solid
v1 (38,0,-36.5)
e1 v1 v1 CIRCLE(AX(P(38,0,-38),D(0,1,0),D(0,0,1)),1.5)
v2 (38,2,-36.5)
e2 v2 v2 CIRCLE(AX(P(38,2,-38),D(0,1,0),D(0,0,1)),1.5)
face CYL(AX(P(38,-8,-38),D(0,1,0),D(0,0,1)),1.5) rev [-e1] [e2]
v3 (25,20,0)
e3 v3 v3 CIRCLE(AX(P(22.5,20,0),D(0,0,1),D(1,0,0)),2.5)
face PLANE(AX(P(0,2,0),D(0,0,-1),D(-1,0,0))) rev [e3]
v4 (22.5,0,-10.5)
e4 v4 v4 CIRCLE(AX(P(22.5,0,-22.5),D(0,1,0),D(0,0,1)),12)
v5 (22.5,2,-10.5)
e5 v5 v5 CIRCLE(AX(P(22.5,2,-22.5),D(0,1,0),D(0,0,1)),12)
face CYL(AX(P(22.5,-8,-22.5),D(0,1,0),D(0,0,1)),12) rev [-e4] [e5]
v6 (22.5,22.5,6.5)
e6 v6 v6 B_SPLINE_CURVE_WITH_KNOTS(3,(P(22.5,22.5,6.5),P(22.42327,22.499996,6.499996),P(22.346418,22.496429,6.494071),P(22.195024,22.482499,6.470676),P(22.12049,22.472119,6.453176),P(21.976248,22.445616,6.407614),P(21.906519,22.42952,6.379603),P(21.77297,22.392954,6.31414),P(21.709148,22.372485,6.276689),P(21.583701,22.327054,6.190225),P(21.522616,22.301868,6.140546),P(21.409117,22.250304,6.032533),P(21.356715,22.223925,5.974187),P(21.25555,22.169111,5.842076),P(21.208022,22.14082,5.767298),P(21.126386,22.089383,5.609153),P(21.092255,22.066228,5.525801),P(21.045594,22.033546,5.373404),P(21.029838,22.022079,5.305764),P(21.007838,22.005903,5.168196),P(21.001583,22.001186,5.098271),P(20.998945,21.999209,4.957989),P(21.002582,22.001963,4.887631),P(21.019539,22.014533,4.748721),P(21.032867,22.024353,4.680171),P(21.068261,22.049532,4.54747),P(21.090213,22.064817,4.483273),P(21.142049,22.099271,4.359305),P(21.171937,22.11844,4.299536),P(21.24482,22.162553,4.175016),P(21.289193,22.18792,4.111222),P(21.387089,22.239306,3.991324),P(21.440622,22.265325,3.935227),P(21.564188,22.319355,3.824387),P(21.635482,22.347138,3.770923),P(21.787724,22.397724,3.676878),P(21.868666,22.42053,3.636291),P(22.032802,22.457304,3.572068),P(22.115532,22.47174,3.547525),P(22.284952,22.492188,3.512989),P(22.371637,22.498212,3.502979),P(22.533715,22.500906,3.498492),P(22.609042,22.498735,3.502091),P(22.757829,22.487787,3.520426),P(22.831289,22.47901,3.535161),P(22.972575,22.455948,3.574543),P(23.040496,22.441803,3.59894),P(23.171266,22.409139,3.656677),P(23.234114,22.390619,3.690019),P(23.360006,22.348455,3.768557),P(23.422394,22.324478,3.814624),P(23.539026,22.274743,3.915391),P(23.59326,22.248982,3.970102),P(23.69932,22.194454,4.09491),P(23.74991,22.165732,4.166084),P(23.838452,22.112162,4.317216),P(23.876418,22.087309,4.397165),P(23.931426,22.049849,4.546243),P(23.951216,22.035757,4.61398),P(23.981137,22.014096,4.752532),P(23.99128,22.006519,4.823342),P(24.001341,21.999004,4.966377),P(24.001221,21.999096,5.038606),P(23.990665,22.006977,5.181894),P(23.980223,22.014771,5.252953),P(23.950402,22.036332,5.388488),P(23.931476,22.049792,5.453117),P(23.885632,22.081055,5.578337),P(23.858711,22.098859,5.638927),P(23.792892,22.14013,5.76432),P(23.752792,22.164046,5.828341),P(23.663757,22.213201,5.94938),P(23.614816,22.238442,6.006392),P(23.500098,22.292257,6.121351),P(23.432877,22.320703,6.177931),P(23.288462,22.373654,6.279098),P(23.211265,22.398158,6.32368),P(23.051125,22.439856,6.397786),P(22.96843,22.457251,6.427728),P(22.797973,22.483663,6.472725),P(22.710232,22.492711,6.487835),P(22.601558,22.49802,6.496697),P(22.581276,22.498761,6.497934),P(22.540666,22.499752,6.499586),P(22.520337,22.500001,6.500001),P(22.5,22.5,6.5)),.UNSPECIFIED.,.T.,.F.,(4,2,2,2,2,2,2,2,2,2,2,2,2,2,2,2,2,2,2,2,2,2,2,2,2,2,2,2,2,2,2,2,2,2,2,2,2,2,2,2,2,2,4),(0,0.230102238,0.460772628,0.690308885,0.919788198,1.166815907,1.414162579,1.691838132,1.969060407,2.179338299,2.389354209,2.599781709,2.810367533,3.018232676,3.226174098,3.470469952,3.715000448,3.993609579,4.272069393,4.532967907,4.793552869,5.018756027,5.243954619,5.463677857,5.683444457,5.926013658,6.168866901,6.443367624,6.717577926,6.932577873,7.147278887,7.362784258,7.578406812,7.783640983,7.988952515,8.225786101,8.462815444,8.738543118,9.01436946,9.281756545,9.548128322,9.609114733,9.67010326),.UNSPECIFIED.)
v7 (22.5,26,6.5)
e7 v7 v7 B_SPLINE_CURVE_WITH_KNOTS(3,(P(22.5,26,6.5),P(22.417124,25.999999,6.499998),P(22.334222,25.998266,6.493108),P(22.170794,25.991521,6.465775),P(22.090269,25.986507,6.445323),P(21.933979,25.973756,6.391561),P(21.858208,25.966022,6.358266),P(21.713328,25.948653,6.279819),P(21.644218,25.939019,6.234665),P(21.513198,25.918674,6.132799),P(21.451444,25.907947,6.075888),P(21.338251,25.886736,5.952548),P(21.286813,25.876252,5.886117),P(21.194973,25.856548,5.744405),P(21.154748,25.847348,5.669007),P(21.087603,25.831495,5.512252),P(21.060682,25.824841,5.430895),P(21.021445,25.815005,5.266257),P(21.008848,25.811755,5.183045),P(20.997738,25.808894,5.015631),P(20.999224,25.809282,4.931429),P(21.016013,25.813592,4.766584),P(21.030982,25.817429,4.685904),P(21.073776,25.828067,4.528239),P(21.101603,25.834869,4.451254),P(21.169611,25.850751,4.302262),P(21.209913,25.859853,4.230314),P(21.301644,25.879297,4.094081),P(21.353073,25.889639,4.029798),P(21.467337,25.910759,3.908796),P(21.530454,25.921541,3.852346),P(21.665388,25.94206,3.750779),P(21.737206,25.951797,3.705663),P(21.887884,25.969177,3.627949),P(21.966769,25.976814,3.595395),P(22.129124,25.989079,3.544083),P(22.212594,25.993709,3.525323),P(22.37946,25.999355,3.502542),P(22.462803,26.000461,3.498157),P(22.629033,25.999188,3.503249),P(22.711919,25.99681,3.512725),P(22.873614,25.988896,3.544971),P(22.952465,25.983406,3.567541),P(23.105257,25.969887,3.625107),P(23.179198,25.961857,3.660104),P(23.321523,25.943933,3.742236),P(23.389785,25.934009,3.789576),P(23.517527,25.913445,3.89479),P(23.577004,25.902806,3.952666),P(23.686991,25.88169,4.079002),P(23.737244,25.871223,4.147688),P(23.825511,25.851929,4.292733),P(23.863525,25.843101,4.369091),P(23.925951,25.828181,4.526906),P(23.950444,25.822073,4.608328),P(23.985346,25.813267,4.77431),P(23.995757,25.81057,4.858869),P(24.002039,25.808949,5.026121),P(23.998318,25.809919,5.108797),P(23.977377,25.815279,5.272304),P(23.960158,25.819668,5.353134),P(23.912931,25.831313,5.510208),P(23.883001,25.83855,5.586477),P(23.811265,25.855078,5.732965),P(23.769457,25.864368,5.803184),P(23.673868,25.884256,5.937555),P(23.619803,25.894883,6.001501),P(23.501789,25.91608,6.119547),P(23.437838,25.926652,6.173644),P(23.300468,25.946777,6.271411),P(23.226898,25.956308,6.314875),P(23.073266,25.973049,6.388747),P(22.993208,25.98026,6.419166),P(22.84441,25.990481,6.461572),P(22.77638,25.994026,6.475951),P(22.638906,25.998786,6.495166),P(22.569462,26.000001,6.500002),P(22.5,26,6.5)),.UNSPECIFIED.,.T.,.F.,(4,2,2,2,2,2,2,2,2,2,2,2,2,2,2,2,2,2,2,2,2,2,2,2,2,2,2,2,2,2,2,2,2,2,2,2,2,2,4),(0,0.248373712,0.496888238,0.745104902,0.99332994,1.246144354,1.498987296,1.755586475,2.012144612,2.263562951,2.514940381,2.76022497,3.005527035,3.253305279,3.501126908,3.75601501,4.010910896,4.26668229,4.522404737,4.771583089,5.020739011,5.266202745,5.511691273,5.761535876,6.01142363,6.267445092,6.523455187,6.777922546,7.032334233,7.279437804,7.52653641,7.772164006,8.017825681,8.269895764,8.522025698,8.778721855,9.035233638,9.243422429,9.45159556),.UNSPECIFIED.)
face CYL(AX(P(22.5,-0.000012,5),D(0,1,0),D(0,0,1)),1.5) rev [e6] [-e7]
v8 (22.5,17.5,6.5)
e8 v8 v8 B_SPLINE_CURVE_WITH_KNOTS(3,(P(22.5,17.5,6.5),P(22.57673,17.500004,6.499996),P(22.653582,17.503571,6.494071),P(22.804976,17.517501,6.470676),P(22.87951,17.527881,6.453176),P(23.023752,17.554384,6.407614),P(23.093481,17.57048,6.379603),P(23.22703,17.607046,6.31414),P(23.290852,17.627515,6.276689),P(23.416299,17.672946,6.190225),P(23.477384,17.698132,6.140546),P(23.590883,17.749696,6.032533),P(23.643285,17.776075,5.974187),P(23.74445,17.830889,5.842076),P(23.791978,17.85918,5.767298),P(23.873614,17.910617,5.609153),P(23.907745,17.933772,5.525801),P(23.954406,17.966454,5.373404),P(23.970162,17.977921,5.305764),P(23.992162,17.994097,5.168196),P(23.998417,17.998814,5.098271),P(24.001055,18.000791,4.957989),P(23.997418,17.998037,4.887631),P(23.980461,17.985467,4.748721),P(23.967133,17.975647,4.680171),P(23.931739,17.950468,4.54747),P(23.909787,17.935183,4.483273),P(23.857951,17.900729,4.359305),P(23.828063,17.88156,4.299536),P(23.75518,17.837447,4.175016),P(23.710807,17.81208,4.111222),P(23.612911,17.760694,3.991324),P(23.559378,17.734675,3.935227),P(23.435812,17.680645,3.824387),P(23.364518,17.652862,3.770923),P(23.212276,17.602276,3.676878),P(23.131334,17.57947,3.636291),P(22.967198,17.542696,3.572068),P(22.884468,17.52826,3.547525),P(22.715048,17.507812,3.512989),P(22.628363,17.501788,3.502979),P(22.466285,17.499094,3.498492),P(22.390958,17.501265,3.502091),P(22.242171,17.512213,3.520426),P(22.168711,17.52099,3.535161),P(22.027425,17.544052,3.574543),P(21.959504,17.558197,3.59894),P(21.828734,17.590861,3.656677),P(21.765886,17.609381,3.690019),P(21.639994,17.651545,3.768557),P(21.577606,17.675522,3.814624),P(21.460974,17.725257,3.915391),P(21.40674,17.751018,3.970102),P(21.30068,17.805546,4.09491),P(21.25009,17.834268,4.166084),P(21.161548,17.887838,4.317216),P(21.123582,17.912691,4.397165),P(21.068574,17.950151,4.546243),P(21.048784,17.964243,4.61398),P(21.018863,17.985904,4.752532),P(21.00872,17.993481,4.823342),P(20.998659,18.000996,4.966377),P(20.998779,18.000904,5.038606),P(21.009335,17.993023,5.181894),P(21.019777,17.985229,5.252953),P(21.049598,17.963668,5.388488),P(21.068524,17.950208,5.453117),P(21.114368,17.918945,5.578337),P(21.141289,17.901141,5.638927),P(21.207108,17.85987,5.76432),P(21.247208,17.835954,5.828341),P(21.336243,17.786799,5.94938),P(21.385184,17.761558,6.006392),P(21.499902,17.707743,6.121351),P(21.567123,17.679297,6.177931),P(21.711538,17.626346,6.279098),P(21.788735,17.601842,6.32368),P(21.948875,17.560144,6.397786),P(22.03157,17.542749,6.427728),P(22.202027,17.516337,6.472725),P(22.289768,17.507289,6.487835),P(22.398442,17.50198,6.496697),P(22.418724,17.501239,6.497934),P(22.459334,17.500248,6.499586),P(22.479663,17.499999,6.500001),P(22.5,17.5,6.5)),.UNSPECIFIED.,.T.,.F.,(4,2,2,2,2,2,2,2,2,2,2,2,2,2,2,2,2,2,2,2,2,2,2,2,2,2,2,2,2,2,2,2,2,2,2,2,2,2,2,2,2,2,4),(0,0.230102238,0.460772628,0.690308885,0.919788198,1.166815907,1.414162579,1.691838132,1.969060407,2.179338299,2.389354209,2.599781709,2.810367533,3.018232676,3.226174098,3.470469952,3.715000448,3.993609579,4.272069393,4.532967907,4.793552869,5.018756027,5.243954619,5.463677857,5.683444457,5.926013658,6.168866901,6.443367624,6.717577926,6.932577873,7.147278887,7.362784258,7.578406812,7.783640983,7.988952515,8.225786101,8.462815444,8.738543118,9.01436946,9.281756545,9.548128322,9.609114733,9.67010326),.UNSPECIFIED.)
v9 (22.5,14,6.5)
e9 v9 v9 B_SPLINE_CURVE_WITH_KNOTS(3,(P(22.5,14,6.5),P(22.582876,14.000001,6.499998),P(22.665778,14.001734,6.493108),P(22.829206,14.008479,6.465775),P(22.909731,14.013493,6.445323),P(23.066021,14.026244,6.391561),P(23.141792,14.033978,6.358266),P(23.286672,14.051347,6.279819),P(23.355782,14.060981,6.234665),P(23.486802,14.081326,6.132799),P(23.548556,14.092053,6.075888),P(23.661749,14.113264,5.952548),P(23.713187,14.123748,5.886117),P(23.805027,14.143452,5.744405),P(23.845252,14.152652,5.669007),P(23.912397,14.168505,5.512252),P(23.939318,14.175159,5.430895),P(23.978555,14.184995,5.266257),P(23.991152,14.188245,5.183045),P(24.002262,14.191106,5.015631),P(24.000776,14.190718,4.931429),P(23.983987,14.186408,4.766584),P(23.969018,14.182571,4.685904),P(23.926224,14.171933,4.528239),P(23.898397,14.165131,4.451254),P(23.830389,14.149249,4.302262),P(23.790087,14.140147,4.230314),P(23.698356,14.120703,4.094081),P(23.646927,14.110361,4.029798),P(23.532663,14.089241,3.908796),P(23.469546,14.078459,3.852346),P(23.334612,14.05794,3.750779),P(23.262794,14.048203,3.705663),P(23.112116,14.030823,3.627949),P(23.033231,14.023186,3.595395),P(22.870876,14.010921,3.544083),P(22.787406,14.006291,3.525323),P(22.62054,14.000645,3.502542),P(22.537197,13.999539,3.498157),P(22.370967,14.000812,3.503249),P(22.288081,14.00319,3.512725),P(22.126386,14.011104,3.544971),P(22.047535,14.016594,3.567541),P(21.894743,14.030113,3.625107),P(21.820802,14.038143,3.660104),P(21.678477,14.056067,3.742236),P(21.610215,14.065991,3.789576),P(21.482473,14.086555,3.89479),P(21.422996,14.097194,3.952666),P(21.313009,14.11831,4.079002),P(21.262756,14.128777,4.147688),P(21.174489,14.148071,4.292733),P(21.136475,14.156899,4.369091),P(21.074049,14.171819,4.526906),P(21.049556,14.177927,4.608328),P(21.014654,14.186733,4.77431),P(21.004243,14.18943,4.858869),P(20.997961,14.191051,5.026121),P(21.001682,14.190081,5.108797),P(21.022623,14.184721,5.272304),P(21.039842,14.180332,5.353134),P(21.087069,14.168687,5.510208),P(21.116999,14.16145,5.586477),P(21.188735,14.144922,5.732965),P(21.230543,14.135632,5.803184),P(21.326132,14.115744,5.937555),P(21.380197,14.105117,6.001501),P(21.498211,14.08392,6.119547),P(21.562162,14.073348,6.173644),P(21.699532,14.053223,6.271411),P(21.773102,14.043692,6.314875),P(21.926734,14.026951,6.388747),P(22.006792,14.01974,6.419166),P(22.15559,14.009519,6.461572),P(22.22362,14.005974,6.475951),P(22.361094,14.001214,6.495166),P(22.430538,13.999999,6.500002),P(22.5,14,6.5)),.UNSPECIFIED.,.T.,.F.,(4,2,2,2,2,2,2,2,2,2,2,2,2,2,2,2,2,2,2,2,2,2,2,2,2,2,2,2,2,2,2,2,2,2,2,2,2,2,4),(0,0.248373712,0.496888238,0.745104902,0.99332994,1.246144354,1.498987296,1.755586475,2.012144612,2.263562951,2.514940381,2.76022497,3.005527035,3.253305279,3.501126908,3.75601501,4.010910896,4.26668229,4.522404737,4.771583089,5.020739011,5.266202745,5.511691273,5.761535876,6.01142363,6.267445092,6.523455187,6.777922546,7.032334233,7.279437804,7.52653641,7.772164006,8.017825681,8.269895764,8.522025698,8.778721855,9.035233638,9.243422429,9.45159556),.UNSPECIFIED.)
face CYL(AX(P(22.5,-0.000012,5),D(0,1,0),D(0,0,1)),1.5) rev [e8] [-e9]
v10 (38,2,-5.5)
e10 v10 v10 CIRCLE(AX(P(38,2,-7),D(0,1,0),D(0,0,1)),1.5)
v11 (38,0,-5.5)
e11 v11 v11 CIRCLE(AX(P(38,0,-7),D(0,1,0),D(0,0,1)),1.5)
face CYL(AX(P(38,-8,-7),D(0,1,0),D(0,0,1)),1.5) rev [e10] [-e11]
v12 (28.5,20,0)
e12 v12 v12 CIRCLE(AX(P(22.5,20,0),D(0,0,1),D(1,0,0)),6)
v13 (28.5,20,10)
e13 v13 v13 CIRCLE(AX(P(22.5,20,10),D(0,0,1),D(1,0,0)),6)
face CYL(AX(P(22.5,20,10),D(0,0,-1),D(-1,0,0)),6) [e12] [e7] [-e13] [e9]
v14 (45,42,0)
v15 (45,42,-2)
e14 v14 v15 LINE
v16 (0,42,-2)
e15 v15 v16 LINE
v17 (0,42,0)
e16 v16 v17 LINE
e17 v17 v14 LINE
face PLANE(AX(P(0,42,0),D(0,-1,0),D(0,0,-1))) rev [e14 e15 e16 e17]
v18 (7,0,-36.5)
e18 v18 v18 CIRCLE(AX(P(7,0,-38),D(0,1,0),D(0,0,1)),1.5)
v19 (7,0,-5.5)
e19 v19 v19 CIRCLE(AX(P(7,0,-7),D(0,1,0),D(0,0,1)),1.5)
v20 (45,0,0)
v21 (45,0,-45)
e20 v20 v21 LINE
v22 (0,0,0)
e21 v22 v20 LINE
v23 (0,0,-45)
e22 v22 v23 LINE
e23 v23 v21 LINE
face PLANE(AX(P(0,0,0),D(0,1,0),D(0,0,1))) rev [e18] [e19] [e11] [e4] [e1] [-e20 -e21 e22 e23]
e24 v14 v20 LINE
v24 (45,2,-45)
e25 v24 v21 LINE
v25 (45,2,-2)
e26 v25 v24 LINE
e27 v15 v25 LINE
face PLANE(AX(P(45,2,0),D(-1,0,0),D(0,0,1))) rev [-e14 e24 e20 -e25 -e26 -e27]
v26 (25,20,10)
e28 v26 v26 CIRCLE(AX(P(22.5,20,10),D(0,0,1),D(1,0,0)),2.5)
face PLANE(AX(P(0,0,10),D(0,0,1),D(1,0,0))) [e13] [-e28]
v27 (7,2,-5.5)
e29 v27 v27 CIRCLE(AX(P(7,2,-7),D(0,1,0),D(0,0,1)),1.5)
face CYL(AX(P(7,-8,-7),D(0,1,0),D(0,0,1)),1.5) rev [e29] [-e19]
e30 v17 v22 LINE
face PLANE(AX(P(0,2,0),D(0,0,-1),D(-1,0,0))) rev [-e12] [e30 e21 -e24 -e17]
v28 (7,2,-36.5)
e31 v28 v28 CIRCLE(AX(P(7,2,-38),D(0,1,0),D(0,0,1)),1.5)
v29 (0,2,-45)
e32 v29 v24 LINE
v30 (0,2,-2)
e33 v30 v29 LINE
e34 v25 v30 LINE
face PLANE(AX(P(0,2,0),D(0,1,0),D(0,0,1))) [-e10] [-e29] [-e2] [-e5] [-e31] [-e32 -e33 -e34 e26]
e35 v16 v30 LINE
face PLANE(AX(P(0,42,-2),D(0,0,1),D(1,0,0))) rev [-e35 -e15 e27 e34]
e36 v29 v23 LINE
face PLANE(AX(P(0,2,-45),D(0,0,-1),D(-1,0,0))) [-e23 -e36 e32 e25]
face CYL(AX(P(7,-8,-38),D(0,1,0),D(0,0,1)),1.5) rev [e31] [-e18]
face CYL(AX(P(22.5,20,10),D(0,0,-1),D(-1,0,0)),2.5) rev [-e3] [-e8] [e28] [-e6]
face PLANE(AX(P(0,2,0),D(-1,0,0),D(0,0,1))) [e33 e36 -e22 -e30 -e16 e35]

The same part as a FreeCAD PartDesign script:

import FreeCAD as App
import Part
import Sketcher
from FreeCAD import Vector


def add_polygon(sketch, points):
    """Adds a closed chain of lines whose ends are joined by coincident constraints."""
    first, n = sketch.GeometryCount, len(points)
    for a, b in zip(points, points[1:] + points[:1]):
        sketch.addGeometry(Part.LineSegment(App.Vector(*a, 0), App.Vector(*b, 0)), False)
    for i in range(n):
        sketch.addConstraint(Sketcher.Constraint("Coincident", first + i, 2, first + (i + 1) % n, 1))

doc = App.newDocument("Part")
params = doc.addObject("Spreadsheet::Sheet", "Params")
for row, (alias, value) in enumerate([
    ("sketch1_width", "45 mm"),
    ("pad1_length", "2 mm"),
    ("sketch2_diameter", "24 mm"),
    ("sketch2_diameter2", "3 mm"),
    ("pocket1_length", "10 mm"),
    ("sketch3_width", "45 mm"),
    ("sketch3_height", "2 mm"),
    ("pad2_length", "40 mm"),
    ("sketch4_diameter", "12 mm"),
    ("sketch4_diameter2", "5 mm"),
    ("pad3_length", "10 mm"),
    ("sketch5_diameter", "3 mm"),
], start=1):
    params.set(f"A{row}", alias)
    params.set(f"B{row}", "=" + value)
    params.setAlias(f"B{row}", alias)

body = doc.addObject("PartDesign::Body", "Body")

sketch1 = body.newObject("Sketcher::SketchObject", "Sketch")
sketch1.AttachmentSupport = (doc.getObject("XZ_Plane"), [""])
sketch1.MapMode = "FlatFace"
add_polygon(sketch1, [(0, -45), (0, 0), (45, 0), (45, -45)])
sketch1.addConstraint([
    Sketcher.Constraint("Vertical", 0),
    Sketcher.Constraint("Horizontal", 1),
    Sketcher.Constraint("Vertical", 2),
    Sketcher.Constraint("Horizontal", 3),
    Sketcher.Constraint("Coincident", 0, 2, -1, 1),
    Sketcher.Constraint("Equal", 3, 0),
    Sketcher.Constraint("DistanceX", 1, 1, 1, 2, 45.0),
])
sketch1.setExpression("Constraints[10]", "Params.sketch1_width")
pad1 = body.newObject("PartDesign::Pad", "Pad")
pad1.Profile = sketch1
pad1.setExpression("Length", "Params.pad1_length")
pad1.Reversed = True

sketch2 = body.newObject("Sketcher::SketchObject", "Sketch001")
sketch2.AttachmentSupport = (doc.getObject("XZ_Plane"), [""])
sketch2.MapMode = "FlatFace"
sketch2.AttachmentOffset = App.Placement(Vector(0, 0, -2), App.Rotation())
sketch2.addGeometry([
    Part.Circle(Vector(22.5, -22.5, 0), Vector(0, 0, 1), 12),
    Part.Circle(Vector(38, -38, 0), Vector(0, 0, 1), 1.5),
    Part.Circle(Vector(7, -38, 0), Vector(0, 0, 1), 1.5),
    Part.Circle(Vector(7, -7, 0), Vector(0, 0, 1), 1.5),
    Part.Circle(Vector(38, -7, 0), Vector(0, 0, 1), 1.5),
], False)
sketch2.addConstraint([
    Sketcher.Constraint("Equal", 1, 2),
    Sketcher.Constraint("Equal", 2, 3),
    Sketcher.Constraint("Equal", 3, 4),
    Sketcher.Constraint("Horizontal", 1, 3, 2, 3),
    Sketcher.Constraint("Horizontal", 3, 3, 4, 3),
    Sketcher.Constraint("Vertical", 2, 3, 3, 3),
    Sketcher.Constraint("Vertical", 1, 3, 4, 3),
    Sketcher.Constraint("Diameter", 0, 24.0),
    Sketcher.Constraint("Diameter", 1, 3.0),
    Sketcher.Constraint("DistanceX", -1, 1, 1, 3, 38.0),
    Sketcher.Constraint("DistanceY", 1, 3, -1, 1, 38.0),
    Sketcher.Constraint("DistanceX", -1, 1, 2, 3, 7.0),
    Sketcher.Constraint("DistanceY", 3, 3, -1, 1, 7.0),
    Sketcher.Constraint("DistanceX", -1, 1, 0, 3, 22.5),
    Sketcher.Constraint("DistanceY", 0, 3, -1, 1, 22.5),
])
sketch2.setExpression("Constraints[7]", "Params.sketch2_diameter")
sketch2.setExpression("Constraints[8]", "Params.sketch2_diameter2")
pocket1 = body.newObject("PartDesign::Pocket", "Pocket")
pocket1.Profile = sketch2
pocket1.setExpression("Length", "Params.pocket1_length")
pocket1.Reversed = True

sketch3 = body.newObject("Sketcher::SketchObject", "Sketch002")
sketch3.AttachmentSupport = (doc.getObject("XZ_Plane"), [""])
sketch3.MapMode = "FlatFace"
sketch3.AttachmentOffset = App.Placement(Vector(0, 0, -2), App.Rotation())
add_polygon(sketch3, [(0, -2), (0, 0), (45, 0), (45, -2)])
sketch3.addConstraint([
    Sketcher.Constraint("Vertical", 0),
    Sketcher.Constraint("Horizontal", 1),
    Sketcher.Constraint("Vertical", 2),
    Sketcher.Constraint("Horizontal", 3),
    Sketcher.Constraint("Coincident", 0, 2, -1, 1),
    Sketcher.Constraint("DistanceX", 1, 1, 1, 2, 45.0),
    Sketcher.Constraint("DistanceY", 0, 1, 0, 2, 2.0),
])
sketch3.setExpression("Constraints[9]", "Params.sketch3_width")
sketch3.setExpression("Constraints[10]", "Params.sketch3_height")
pad2 = body.newObject("PartDesign::Pad", "Pad001")
pad2.Profile = sketch3
pad2.setExpression("Length", "Params.pad2_length")
pad2.Reversed = True

sketch4 = body.newObject("Sketcher::SketchObject", "Sketch003")
sketch4.AttachmentSupport = (doc.getObject("XY_Plane"), [""])
sketch4.MapMode = "FlatFace"
sketch4.addGeometry([
    Part.Circle(Vector(22.5, 20, 0), Vector(0, 0, 1), 6),
    Part.Circle(Vector(22.5, 20, 0), Vector(0, 0, 1), 2.5),
], False)
sketch4.addConstraint([
    Sketcher.Constraint("Coincident", 1, 3, 0, 3),
    Sketcher.Constraint("Diameter", 0, 12.0),
    Sketcher.Constraint("Diameter", 1, 5.0),
    Sketcher.Constraint("DistanceY", -1, 1, 0, 3, 20.0),
    Sketcher.Constraint("DistanceX", -1, 1, 0, 3, 22.5),
])
sketch4.setExpression("Constraints[1]", "Params.sketch4_diameter")
sketch4.setExpression("Constraints[2]", "Params.sketch4_diameter2")
pad3 = body.newObject("PartDesign::Pad", "Pad002")
pad3.Profile = sketch4
pad3.setExpression("Length", "Params.pad3_length")

sketch5 = body.newObject("Sketcher::SketchObject", "Sketch004")
sketch5.AttachmentSupport = (doc.getObject("XZ_Plane"), [""])
sketch5.MapMode = "FlatFace"
sketch5.addGeometry(Part.Circle(Vector(22.5, 5, 0), Vector(0, 0, 1), 1.5), False)
sketch5.addConstraint([
    Sketcher.Constraint("Diameter", 0, 3.0),
    Sketcher.Constraint("DistanceY", -1, 1, 0, 3, 5.0),
    Sketcher.Constraint("DistanceX", -1, 1, 0, 3, 22.5),
])
sketch5.setExpression("Constraints[0]", "Params.sketch5_diameter")
pocket2 = body.newObject("PartDesign::Pocket", "Pocket001")
pocket2.Profile = sketch5
pocket2.Type = "ThroughAll"
pocket2.Midplane = True

doc.recompute()
